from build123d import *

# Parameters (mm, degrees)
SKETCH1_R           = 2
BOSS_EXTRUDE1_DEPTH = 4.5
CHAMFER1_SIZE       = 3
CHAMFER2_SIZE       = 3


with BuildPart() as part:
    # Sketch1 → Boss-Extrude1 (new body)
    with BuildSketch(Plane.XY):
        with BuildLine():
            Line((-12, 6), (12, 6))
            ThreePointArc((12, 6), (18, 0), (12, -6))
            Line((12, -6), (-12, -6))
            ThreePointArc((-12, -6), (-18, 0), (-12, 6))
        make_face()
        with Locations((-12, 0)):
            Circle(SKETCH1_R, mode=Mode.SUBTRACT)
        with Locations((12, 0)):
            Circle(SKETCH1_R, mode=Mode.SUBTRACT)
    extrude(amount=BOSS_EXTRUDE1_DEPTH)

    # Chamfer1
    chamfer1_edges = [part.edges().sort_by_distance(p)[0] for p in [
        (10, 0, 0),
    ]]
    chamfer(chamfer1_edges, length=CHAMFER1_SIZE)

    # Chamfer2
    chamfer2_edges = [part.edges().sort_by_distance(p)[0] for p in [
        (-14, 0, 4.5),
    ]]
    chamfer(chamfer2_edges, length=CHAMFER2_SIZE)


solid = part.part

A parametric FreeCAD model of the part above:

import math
import FreeCAD as App
import Part
import Sketcher


def edges_at(feature, points):
    """Names of the edges that pass closest to the given points."""
    edges = feature.Shape.Edges
    near = lambda p: min(range(len(edges)), key=lambda i: edges[i].distToShape(Part.Vertex(*p))[0])
    return sorted({f"Edge{near(p) + 1}" for p in points})

doc = App.newDocument("Part")
body = doc.addObject("PartDesign::Body", "Body")

# Sketch on XY plane
sketch1 = body.newObject("Sketcher::SketchObject", "Sketch")
sketch1.AttachmentSupport = (doc.getObject("XY_Plane"), [""])
sketch1.MapMode = "FlatFace"
sketch1.addGeometry(Part.LineSegment(App.Vector(12, 6, 0), App.Vector(-12, 6, 0)), False)
sketch1.addGeometry(Part.ArcOfCircle(Part.Circle(App.Vector(-12, 0, 0), App.Vector(0, 0, 1), 6), math.radians(90), math.radians(270)), False)
sketch1.addGeometry(Part.LineSegment(App.Vector(-12, -6, 0), App.Vector(12, -6, 0)), False)
sketch1.addGeometry(Part.ArcOfCircle(Part.Circle(App.Vector(12, 0, 0), App.Vector(0, 0, 1), 6), math.radians(-90), math.radians(90)), False)
sketch1.addGeometry(Part.Circle(App.Vector(12, 0, 0), App.Vector(0, 0, 1), 2), False)
sketch1.addGeometry(Part.Circle(App.Vector(-12, 0, 0), App.Vector(0, 0, 1), 2), False)
sketch1.addConstraint(Sketcher.Constraint("Tangent", 0, 2, 1, 1))
sketch1.addConstraint(Sketcher.Constraint("Tangent", 1, 2, 2, 1))
sketch1.addConstraint(Sketcher.Constraint("Tangent", 2, 2, 3, 1))
sketch1.addConstraint(Sketcher.Constraint("Tangent", 3, 2, 0, 1))
sketch1.addConstraint(Sketcher.Constraint("Horizontal", 0))
sketch1.addConstraint(Sketcher.Constraint("Horizontal", 2))
sketch1.addConstraint(Sketcher.Constraint("Coincident", 4, 3, 3, 3))
sketch1.addConstraint(Sketcher.Constraint("Coincident", 5, 3, 1, 3))
sketch1.addConstraint(Sketcher.Constraint("Equal", 4, 5))
sketch1.addConstraint(Sketcher.Constraint("Symmetric", 1, 3, 3, 3, -1, 1))
sketch1.addConstraint(Sketcher.Constraint("Diameter", 4, 4.0))
sketch1.addConstraint(Sketcher.Constraint("Radius", 1, 6.0))
sketch1.addConstraint(Sketcher.Constraint("DistanceX", 0, 2, 0, 1, 24.0))
pad1 = body.newObject("PartDesign::Pad", "Pad")
pad1.Profile = sketch1
pad1.Length = 4.5
doc.recompute()

chamfer = body.newObject("PartDesign::Chamfer", "Chamfer")
chamfer.Base = (pad1, edges_at(pad1, [(10, 0, 0)]))
chamfer.Size = 3
doc.recompute()

chamfer2 = body.newObject("PartDesign::Chamfer", "Chamfer001")
chamfer2.Base = (chamfer, edges_at(chamfer, [(-14, 0, 4.5)]))
chamfer2.Size = 3

doc.recompute()
